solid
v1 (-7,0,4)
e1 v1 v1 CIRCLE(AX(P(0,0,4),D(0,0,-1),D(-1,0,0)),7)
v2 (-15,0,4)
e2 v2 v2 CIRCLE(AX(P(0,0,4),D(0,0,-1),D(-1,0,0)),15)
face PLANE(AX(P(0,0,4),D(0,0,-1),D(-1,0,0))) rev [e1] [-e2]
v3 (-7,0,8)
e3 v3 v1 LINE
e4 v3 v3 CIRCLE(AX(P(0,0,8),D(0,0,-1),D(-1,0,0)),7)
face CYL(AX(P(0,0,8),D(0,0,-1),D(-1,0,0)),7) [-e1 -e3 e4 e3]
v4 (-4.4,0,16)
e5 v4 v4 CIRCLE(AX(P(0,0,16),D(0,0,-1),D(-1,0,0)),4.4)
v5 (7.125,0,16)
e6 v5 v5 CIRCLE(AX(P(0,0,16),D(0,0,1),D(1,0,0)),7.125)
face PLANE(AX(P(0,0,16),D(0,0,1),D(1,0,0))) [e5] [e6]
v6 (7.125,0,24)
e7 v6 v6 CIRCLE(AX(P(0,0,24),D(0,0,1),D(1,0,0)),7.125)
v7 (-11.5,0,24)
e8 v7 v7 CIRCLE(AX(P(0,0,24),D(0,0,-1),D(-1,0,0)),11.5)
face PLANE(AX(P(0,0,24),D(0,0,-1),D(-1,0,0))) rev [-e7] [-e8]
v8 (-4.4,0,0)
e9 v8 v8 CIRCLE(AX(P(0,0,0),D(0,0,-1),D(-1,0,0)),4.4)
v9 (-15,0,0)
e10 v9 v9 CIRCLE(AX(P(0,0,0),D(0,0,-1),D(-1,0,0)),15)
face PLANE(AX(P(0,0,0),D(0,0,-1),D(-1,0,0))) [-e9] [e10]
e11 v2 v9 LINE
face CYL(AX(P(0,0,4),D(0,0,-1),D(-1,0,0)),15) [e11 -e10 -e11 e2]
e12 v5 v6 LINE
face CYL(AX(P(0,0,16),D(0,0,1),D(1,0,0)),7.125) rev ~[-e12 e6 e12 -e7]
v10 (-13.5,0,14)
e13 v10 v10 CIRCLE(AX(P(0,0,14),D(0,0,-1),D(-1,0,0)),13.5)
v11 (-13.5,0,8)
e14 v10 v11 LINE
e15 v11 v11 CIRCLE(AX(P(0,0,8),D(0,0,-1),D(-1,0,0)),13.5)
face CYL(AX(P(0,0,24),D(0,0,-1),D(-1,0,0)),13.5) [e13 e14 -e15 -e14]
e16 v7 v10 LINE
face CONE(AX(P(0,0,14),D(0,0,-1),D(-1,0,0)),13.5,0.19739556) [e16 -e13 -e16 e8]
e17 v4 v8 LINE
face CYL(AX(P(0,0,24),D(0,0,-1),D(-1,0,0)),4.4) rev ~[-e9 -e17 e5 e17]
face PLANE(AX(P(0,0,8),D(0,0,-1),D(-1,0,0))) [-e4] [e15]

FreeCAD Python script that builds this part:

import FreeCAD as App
import Part
import Sketcher
Q = App.Units.Quantity


def edges_at(feature, points):
    """Names of the edges that pass closest to the given points."""
    edges = feature.Shape.Edges
    near = lambda p: min(range(len(edges)), key=lambda i: edges[i].distToShape(Part.Vertex(*p))[0])
    return sorted({f"Edge{near(p) + 1}" for p in points})


def add_polygon(sketch, points):
    """Adds a closed chain of lines whose ends are joined by coincident constraints."""
    first, n = sketch.GeometryCount, len(points)
    for a, b in zip(points, points[1:] + points[:1]):
        sketch.addGeometry(Part.LineSegment(App.Vector(*a, 0), App.Vector(*b, 0)), False)
    for i in range(n):
        sketch.addConstraint(Sketcher.Constraint("Coincident", first + i, 2, first + (i + 1) % n, 1))

doc = App.newDocument("Part")
body = doc.addObject("PartDesign::Body", "Body")

# Sketch on XZ plane
sketch1 = body.newObject("Sketcher::SketchObject", "Sketch")
sketch1.AttachmentSupport = (doc.getObject("XZ_Plane"), [""])
sketch1.MapMode = "FlatFace"
add_polygon(sketch1, [(-15, 0), (0, 0), (0, 24), (-13.5, 24), (-13.5, 8), (-7, 8), (-7, 4), (-15, 4)])  # lines 0-7
sketch1.addConstraint(Sketcher.Constraint("Horizontal", 0))
sketch1.addConstraint(Sketcher.Constraint("Vertical", 1))
sketch1.addConstraint(Sketcher.Constraint("Horizontal", 2))
sketch1.addConstraint(Sketcher.Constraint("Vertical", 3))
sketch1.addConstraint(Sketcher.Constraint("Horizontal", 4))
sketch1.addConstraint(Sketcher.Constraint("Vertical", 5))
sketch1.addConstraint(Sketcher.Constraint("Horizontal", 6))
sketch1.addConstraint(Sketcher.Constraint("Vertical", 7))
sketch1.addConstraint(Sketcher.Constraint("Coincident", 0, 2, -1, 1))
sketch1.addConstraint(Sketcher.Constraint("Equal", 5, 7))
sketch1.addConstraint(Sketcher.Constraint("DistanceX", 0, 1, 0, 2, Q("15 mm")))
sketch1.addConstraint(Sketcher.Constraint("DistanceX", 6, 2, 6, 1, Q("8 mm")))
sketch1.addConstraint(Sketcher.Constraint("DistanceY", 1, 1, 1, 2, Q("24 mm")))
sketch1.addConstraint(Sketcher.Constraint("DistanceY", 3, 2, 3, 1, Q("16 mm")))
sketch1.addConstraint(Sketcher.Constraint("DistanceX", 2, 2, 2, 1, Q("13.5 mm")))
revolution = body.newObject("PartDesign::Revolution", "Revolution")
revolution.Profile = sketch1
revolution.ReferenceAxis = (sketch1, ["V_Axis"])
revolution.Angle = 360
doc.recompute()

chamfer = body.newObject("PartDesign::Chamfer", "Chamfer")
chamfer.Base = (revolution, edges_at(revolution, [(13.5, 0, 24)]))
chamfer.ChamferType = "Two distances"
chamfer.Size = 2
chamfer.Size2 = 10

# Sketch on XY plane
sketch2 = body.newObject("Sketcher::SketchObject", "Sketch001")
sketch2.AttachmentSupport = (doc.getObject("XY_Plane"), [""])
sketch2.MapMode = "FlatFace"
sketch2.AttachmentOffset = App.Placement(App.Vector(0, 0, 24), App.Rotation())
sketch2.addGeometry(Part.Circle(App.Vector(0, 0, 0), App.Vector(0, 0, 1), 4.4), False)
sketch2.addConstraint(Sketcher.Constraint("Coincident", 0, 3, -1, 1))
sketch2.addConstraint(Sketcher.Constraint("Diameter", 0, Q("8.8 mm")))
doc.recompute()
hole = body.newObject("PartDesign::Hole", "Hole")
hole.Profile = sketch2
hole.ThreadType = "None"
hole.Diameter = 8.8
hole.DepthType = "ThroughAll"
hole.HoleCutType = "Counterbore"
hole.HoleCutDiameter = 14.25
hole.HoleCutDepth = 8

doc.recompute()
